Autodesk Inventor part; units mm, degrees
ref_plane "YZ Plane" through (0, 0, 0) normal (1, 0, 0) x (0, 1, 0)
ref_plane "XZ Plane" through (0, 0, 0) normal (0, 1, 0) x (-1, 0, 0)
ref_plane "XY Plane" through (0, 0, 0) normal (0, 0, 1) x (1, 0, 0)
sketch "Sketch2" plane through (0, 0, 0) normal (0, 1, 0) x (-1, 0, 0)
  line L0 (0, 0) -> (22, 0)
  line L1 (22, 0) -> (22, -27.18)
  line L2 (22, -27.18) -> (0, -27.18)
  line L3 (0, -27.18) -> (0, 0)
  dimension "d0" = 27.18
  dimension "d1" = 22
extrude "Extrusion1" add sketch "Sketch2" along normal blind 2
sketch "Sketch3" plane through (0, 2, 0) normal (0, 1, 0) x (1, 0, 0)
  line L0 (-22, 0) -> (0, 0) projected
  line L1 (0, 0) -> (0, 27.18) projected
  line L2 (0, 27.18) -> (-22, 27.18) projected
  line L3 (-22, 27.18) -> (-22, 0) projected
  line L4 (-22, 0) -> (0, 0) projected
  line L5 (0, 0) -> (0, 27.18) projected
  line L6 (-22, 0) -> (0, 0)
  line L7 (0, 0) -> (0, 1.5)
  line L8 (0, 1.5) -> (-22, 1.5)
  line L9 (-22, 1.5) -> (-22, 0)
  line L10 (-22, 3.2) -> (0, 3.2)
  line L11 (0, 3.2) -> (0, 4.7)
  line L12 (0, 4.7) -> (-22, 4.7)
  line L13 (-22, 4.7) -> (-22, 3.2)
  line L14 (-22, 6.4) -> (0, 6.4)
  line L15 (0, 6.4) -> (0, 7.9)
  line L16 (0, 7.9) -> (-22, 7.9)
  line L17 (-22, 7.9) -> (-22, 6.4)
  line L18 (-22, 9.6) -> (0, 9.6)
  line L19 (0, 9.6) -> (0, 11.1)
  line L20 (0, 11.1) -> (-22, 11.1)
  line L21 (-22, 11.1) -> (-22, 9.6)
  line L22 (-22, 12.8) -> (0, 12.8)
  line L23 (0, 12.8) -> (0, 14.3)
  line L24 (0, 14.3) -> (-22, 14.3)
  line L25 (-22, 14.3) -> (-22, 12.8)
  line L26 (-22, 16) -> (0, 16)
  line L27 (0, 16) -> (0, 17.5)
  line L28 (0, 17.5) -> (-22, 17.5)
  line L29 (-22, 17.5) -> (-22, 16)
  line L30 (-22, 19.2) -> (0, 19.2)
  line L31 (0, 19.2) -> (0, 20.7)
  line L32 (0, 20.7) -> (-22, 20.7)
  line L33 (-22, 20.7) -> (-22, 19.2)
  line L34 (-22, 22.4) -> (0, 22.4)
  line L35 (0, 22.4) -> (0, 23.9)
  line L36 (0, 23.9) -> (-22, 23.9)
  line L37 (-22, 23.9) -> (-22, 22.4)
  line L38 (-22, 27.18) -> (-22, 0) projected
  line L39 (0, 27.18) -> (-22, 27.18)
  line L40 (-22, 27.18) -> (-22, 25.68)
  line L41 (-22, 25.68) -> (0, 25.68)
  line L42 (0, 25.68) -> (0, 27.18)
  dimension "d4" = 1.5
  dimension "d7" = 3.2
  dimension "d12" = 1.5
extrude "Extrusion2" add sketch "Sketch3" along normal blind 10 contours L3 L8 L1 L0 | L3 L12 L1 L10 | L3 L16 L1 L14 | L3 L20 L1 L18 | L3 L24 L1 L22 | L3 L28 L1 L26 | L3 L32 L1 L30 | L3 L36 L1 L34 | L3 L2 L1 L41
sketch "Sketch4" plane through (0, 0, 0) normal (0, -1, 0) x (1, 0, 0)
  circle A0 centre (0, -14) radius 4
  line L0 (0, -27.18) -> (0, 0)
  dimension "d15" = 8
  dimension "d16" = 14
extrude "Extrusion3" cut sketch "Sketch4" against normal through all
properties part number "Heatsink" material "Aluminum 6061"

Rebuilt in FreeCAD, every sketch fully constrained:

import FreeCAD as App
import Part
import Sketcher
from FreeCAD import Vector

doc = App.newDocument("Part")
params = doc.addObject("Spreadsheet::Sheet", "Params")
for row, (alias, value) in enumerate([
    ("sketch1_width", "22 mm"),
    ("sketch1_height", "27.18 mm"),
    ("pad1_length", "2 mm"),
    ("sketch2_height", "1.5 mm"),
    ("sketch2_width", "22 mm"),
    ("pad2_length", "10 mm"),
    ("sketch3_diameter", "8 mm"),
], start=1):
    params.set(f"A{row}", alias)
    params.set(f"B{row}", "=" + value)
    params.setAlias(f"B{row}", alias)

body = doc.addObject("PartDesign::Body", "Body")

# Sketch on XZ plane
sketch1 = doc.addObject("Sketcher::SketchObject", "Sketch")
body.addObject(sketch1)
sketch1.AttachmentSupport = (doc.XZ_Plane, [""])
sketch1.MapMode = "FlatFace"
sketch1.addGeometry([
    Part.LineSegment(Vector(-22, 0, 0), Vector(0, 0, 0)),
    Part.LineSegment(Vector(0, 0, 0), Vector(0, -27.18, 0)),
    Part.LineSegment(Vector(0, -27.18, 0), Vector(-22, -27.18, 0)),
    Part.LineSegment(Vector(-22, -27.18, 0), Vector(-22, 0, 0)),
], False)
sketch1.addConstraint([
    Sketcher.Constraint("Coincident", 0, 2, 1, 1),
    Sketcher.Constraint("Coincident", 1, 2, 2, 1),
    Sketcher.Constraint("Coincident", 2, 2, 3, 1),
    Sketcher.Constraint("Coincident", 3, 2, 0, 1),
    Sketcher.Constraint("Horizontal", 0),
    Sketcher.Constraint("Vertical", 1),
    Sketcher.Constraint("Horizontal", 2),
    Sketcher.Constraint("Vertical", 3),
    Sketcher.Constraint("Coincident", 0, 2, -1, 1),
    Sketcher.Constraint("DistanceX", 0, 1, 0, 2, 22.0),
    Sketcher.Constraint("DistanceY", 1, 2, 1, 1, 27.18),
])
sketch1.setExpression("Constraints[9]", "Params.sketch1_width")
sketch1.setExpression("Constraints[10]", "Params.sketch1_height")
pad1 = doc.addObject("PartDesign::Pad", "Pad")
body.addObject(pad1)
pad1.Profile = sketch1
pad1.setExpression("Length", "Params.pad1_length")
pad1.Reversed = True

# Sketch on XZ plane
sketch2 = doc.addObject("Sketcher::SketchObject", "Sketch001")
body.addObject(sketch2)
sketch2.AttachmentSupport = (doc.XZ_Plane, [""])
sketch2.MapMode = "FlatFace"
sketch2.AttachmentOffset = App.Placement(Vector(0, 0, -2), App.Rotation())
sketch2.addGeometry([
    Part.LineSegment(Vector(-22, -1.5, 0), Vector(-22, 0, 0)),  # 0
    Part.LineSegment(Vector(-22, 0, 0), Vector(0, 0, 0)),  # 1
    Part.LineSegment(Vector(0, 0, 0), Vector(0, -1.5, 0)),  # 2
    Part.LineSegment(Vector(0, -1.5, 0), Vector(-22, -1.5, 0)),  # 3
    Part.LineSegment(Vector(-22, -4.7, 0), Vector(-22, -3.2, 0)),  # 4
    Part.LineSegment(Vector(-22, -3.2, 0), Vector(0, -3.2, 0)),  # 5
    Part.LineSegment(Vector(0, -3.2, 0), Vector(0, -4.7, 0)),  # 6
    Part.LineSegment(Vector(0, -4.7, 0), Vector(-22, -4.7, 0)),  # 7
    Part.LineSegment(Vector(-22, -7.9, 0), Vector(-22, -6.4, 0)),  # 8
    Part.LineSegment(Vector(-22, -6.4, 0), Vector(0, -6.4, 0)),  # 9
    Part.LineSegment(Vector(0, -6.4, 0), Vector(0, -7.9, 0)),  # 10
    Part.LineSegment(Vector(0, -7.9, 0), Vector(-22, -7.9, 0)),  # 11
    Part.LineSegment(Vector(-22, -11.1, 0), Vector(-22, -9.6, 0)),  # 12
    Part.LineSegment(Vector(-22, -9.6, 0), Vector(0, -9.6, 0)),  # 13
    Part.LineSegment(Vector(0, -9.6, 0), Vector(0, -11.1, 0)),  # 14
    Part.LineSegment(Vector(0, -11.1, 0), Vector(-22, -11.1, 0)),  # 15
    Part.LineSegment(Vector(-22, -14.3, 0), Vector(-22, -12.8, 0)),  # 16
    Part.LineSegment(Vector(-22, -12.8, 0), Vector(0, -12.8, 0)),  # 17
    Part.LineSegment(Vector(0, -12.8, 0), Vector(0, -14.3, 0)),  # 18
    Part.LineSegment(Vector(0, -14.3, 0), Vector(-22, -14.3, 0)),  # 19
    Part.LineSegment(Vector(-22, -17.5, 0), Vector(-22, -16, 0)),  # 20
    Part.LineSegment(Vector(-22, -16, 0), Vector(0, -16, 0)),  # 21
    Part.LineSegment(Vector(0, -16, 0), Vector(0, -17.5, 0)),  # 22
    Part.LineSegment(Vector(0, -17.5, 0), Vector(-22, -17.5, 0)),  # 23
    Part.LineSegment(Vector(-22, -20.7, 0), Vector(-22, -19.2, 0)),  # 24
    Part.LineSegment(Vector(-22, -19.2, 0), Vector(0, -19.2, 0)),  # 25
    Part.LineSegment(Vector(0, -19.2, 0), Vector(0, -20.7, 0)),  # 26
    Part.LineSegment(Vector(0, -20.7, 0), Vector(-22, -20.7, 0)),  # 27
    Part.LineSegment(Vector(-22, -23.9, 0), Vector(-22, -22.4, 0)),  # 28
    Part.LineSegment(Vector(-22, -22.4, 0), Vector(0, -22.4, 0)),  # 29
    Part.LineSegment(Vector(0, -22.4, 0), Vector(0, -23.9, 0)),  # 30
    Part.LineSegment(Vector(0, -23.9, 0), Vector(-22, -23.9, 0)),  # 31
    Part.LineSegment(Vector(-22, -27.18, 0), Vector(-22, -25.68, 0)),  # 32
    Part.LineSegment(Vector(-22, -25.68, 0), Vector(0, -25.68, 0)),  # 33
    Part.LineSegment(Vector(0, -25.68, 0), Vector(0, -27.18, 0)),  # 34
    Part.LineSegment(Vector(0, -27.18, 0), Vector(-22, -27.18, 0)),  # 35
], False)
sketch2.addConstraint([
    Sketcher.Constraint("Coincident", 0, 2, 1, 1),
    Sketcher.Constraint("Coincident", 1, 2, 2, 1),
    Sketcher.Constraint("Coincident", 2, 2, 3, 1),
    Sketcher.Constraint("Coincident", 3, 2, 0, 1),
    Sketcher.Constraint("Coincident", 4, 2, 5, 1),
    Sketcher.Constraint("Coincident", 5, 2, 6, 1),
    Sketcher.Constraint("Coincident", 6, 2, 7, 1),
    Sketcher.Constraint("Coincident", 7, 2, 4, 1),
    Sketcher.Constraint("Coincident", 8, 2, 9, 1),
    Sketcher.Constraint("Coincident", 9, 2, 10, 1),
    Sketcher.Constraint("Coincident", 10, 2, 11, 1),
    Sketcher.Constraint("Coincident", 11, 2, 8, 1),
    Sketcher.Constraint("Coincident", 12, 2, 13, 1),
    Sketcher.Constraint("Coincident", 13, 2, 14, 1),
    Sketcher.Constraint("Coincident", 14, 2, 15, 1),
    Sketcher.Constraint("Coincident", 15, 2, 12, 1),
    Sketcher.Constraint("Coincident", 16, 2, 17, 1),
    Sketcher.Constraint("Coincident", 17, 2, 18, 1),
    Sketcher.Constraint("Coincident", 18, 2, 19, 1),
    Sketcher.Constraint("Coincident", 19, 2, 16, 1),
    Sketcher.Constraint("Coincident", 20, 2, 21, 1),
    Sketcher.Constraint("Coincident", 21, 2, 22, 1),
    Sketcher.Constraint("Coincident", 22, 2, 23, 1),
    Sketcher.Constraint("Coincident", 23, 2, 20, 1),
    Sketcher.Constraint("Coincident", 24, 2, 25, 1),
    Sketcher.Constraint("Coincident", 25, 2, 26, 1),
    Sketcher.Constraint("Coincident", 26, 2, 27, 1),
    Sketcher.Constraint("Coincident", 27, 2, 24, 1),
    Sketcher.Constraint("Coincident", 28, 2, 29, 1),
    Sketcher.Constraint("Coincident", 29, 2, 30, 1),
    Sketcher.Constraint("Coincident", 30, 2, 31, 1),
    Sketcher.Constraint("Coincident", 31, 2, 28, 1),
    Sketcher.Constraint("Coincident", 32, 2, 33, 1),
    Sketcher.Constraint("Coincident", 33, 2, 34, 1),
    Sketcher.Constraint("Coincident", 34, 2, 35, 1),
    Sketcher.Constraint("Coincident", 35, 2, 32, 1),
    Sketcher.Constraint("Vertical", 0),
    Sketcher.Constraint("Horizontal", 1),
    Sketcher.Constraint("Vertical", 2),
    Sketcher.Constraint("Horizontal", 3),
    Sketcher.Constraint("Vertical", 4),
    Sketcher.Constraint("Horizontal", 5),
    Sketcher.Constraint("Vertical", 6),
    Sketcher.Constraint("Horizontal", 7),
    Sketcher.Constraint("Vertical", 8),
    Sketcher.Constraint("Horizontal", 9),
    Sketcher.Constraint("Vertical", 10),
    Sketcher.Constraint("Horizontal", 11),
    Sketcher.Constraint("Vertical", 12),
    Sketcher.Constraint("Horizontal", 13),
    Sketcher.Constraint("Vertical", 14),
    Sketcher.Constraint("Horizontal", 15),
    Sketcher.Constraint("Vertical", 16),
    Sketcher.Constraint("Horizontal", 17),
    Sketcher.Constraint("Vertical", 18),
    Sketcher.Constraint("Horizontal", 19),
    Sketcher.Constraint("Vertical", 20),
    Sketcher.Constraint("Horizontal", 21),
    Sketcher.Constraint("Vertical", 22),
    Sketcher.Constraint("Horizontal", 23),
    Sketcher.Constraint("Vertical", 24),
    Sketcher.Constraint("Horizontal", 25),
    Sketcher.Constraint("Vertical", 26),
    Sketcher.Constraint("Horizontal", 27),
    Sketcher.Constraint("Vertical", 28),
    Sketcher.Constraint("Horizontal", 29),
    Sketcher.Constraint("Vertical", 30),
    Sketcher.Constraint("Horizontal", 31),
    Sketcher.Constraint("Vertical", 32),
    Sketcher.Constraint("Horizontal", 33),
    Sketcher.Constraint("Vertical", 34),
    Sketcher.Constraint("Horizontal", 35),
    Sketcher.Constraint("Coincident", 1, 2, -1, 1),
    Sketcher.Constraint("PointOnObject", 5, 2, -2),
    Sketcher.Constraint("PointOnObject", 9, 2, -2),
    Sketcher.Constraint("PointOnObject", 13, 2, -2),
    Sketcher.Constraint("PointOnObject", 17, 2, -2),
    Sketcher.Constraint("PointOnObject", 21, 2, -2),
    Sketcher.Constraint("PointOnObject", 25, 2, -2),
    Sketcher.Constraint("PointOnObject", 29, 2, -2),
    Sketcher.Constraint("PointOnObject", 33, 2, -2),
    Sketcher.Constraint("Vertical", 3, 2, 4, 2),
    Sketcher.Constraint("Vertical", 7, 2, 8, 2),
    Sketcher.Constraint("Vertical", 11, 2, 12, 2),
    Sketcher.Constraint("Vertical", 15, 2, 16, 2),
    Sketcher.Constraint("Vertical", 19, 2, 20, 2),
    Sketcher.Constraint("Vertical", 23, 2, 24, 2),
    Sketcher.Constraint("Vertical", 27, 2, 28, 2),
    Sketcher.Constraint("Vertical", 31, 2, 32, 2),
    Sketcher.Constraint("Equal", 2, 4),
    Sketcher.Constraint("Equal", 6, 8),
    Sketcher.Constraint("Equal", 10, 12),
    Sketcher.Constraint("Equal", 14, 16),
    Sketcher.Constraint("Equal", 18, 20),
    Sketcher.Constraint("Equal", 22, 24),
    Sketcher.Constraint("Equal", 26, 28),
    Sketcher.Constraint("Equal", 30, 32),
    Sketcher.Constraint("DistanceY", 0, 1, 0, 2, 1.5),
    Sketcher.Constraint("DistanceY", 4, 2, -1, 1, 3.2),
    Sketcher.Constraint("DistanceY", 8, 2, 4, 2, 3.2),
    Sketcher.Constraint("DistanceY", 12, 2, 8, 2, 3.2),
    Sketcher.Constraint("DistanceY", 16, 2, 12, 2, 3.2),
    Sketcher.Constraint("DistanceY", 20, 2, 16, 2, 3.2),
    Sketcher.Constraint("DistanceY", 24, 2, 20, 2, 3.2),
    Sketcher.Constraint("DistanceY", 28, 2, 24, 2, 3.2),
    Sketcher.Constraint("DistanceX", 1, 1, 1, 2, 22.0),
    Sketcher.Constraint("DistanceY", 32, 2, -1, 1, 25.68),
])
sketch2.setExpression("Constraints[97]", "Params.sketch2_height")
sketch2.setExpression("Constraints[105]", "Params.sketch2_width")
pad2 = doc.addObject("PartDesign::Pad", "Pad001")
body.addObject(pad2)
pad2.Profile = sketch2
pad2.setExpression("Length", "Params.pad2_length")
pad2.Reversed = True

# Sketch on XZ plane
sketch3 = doc.addObject("Sketcher::SketchObject", "Sketch002")
body.addObject(sketch3)
sketch3.AttachmentSupport = (doc.XZ_Plane, [""])
sketch3.MapMode = "FlatFace"
sketch3.addGeometry(Part.Circle(Vector(0, -14, 0), Vector(0, 0, 1), 4), False)
sketch3.addConstraint([
    Sketcher.Constraint("PointOnObject", 0, 3, -2),
    Sketcher.Constraint("Diameter", 0, 8.0),
    Sketcher.Constraint("DistanceY", 0, 3, -1, 1, 14.0),
])
sketch3.setExpression("Constraints[1]", "Params.sketch3_diameter")
pocket1 = doc.addObject("PartDesign::Pocket", "Pocket")
body.addObject(pocket1)
pocket1.Profile = sketch3
pocket1.Type = "ThroughAll"

doc.recompute()
